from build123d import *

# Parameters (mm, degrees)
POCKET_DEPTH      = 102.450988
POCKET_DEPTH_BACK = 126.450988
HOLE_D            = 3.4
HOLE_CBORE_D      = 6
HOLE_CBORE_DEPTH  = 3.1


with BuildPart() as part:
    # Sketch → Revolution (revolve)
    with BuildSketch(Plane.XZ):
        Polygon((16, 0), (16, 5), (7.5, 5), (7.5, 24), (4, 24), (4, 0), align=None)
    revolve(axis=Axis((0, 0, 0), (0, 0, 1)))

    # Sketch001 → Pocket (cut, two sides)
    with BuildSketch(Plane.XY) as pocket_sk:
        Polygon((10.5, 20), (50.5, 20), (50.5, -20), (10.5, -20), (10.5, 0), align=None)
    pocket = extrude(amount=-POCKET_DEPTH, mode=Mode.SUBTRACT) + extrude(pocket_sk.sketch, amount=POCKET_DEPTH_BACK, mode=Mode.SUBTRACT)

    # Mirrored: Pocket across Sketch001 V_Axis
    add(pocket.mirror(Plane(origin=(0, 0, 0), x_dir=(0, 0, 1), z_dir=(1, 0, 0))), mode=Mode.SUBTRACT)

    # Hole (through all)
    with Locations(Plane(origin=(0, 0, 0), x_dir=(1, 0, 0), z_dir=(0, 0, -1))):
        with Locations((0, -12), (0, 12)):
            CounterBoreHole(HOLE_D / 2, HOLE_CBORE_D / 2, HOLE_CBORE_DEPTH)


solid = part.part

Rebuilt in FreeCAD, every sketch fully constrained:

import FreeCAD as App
import Part
import Sketcher

doc = App.newDocument("Part")
body = doc.addObject("PartDesign::Body", "Body")

# Sketch on XZ plane
sketch1 = body.newObject("Sketcher::SketchObject", "Sketch")
sketch1.AttachmentSupport = (doc.getObject("XZ_Plane"), [""])
sketch1.MapMode = "FlatFace"
sketch1.addGeometry(Part.LineSegment(App.Vector(16, 0, 0), App.Vector(16, 5, 0)), False)
sketch1.addGeometry(Part.LineSegment(App.Vector(16, 5, 0), App.Vector(7.5, 5, 0)), False)
sketch1.addGeometry(Part.LineSegment(App.Vector(7.5, 5, 0), App.Vector(7.5, 24, 0)), False)
sketch1.addGeometry(Part.LineSegment(App.Vector(7.5, 24, 0), App.Vector(4, 24, 0)), False)
sketch1.addGeometry(Part.LineSegment(App.Vector(4, 24, 0), App.Vector(4, 0, 0)), False)
sketch1.addGeometry(Part.LineSegment(App.Vector(4, 0, 0), App.Vector(16, 0, 0)), False)
sketch1.addConstraint(Sketcher.Constraint("Coincident", 0, 2, 1, 1))
sketch1.addConstraint(Sketcher.Constraint("Coincident", 1, 2, 2, 1))
sketch1.addConstraint(Sketcher.Constraint("Coincident", 2, 2, 3, 1))
sketch1.addConstraint(Sketcher.Constraint("Coincident", 3, 2, 4, 1))
sketch1.addConstraint(Sketcher.Constraint("Coincident", 4, 2, 5, 1))
sketch1.addConstraint(Sketcher.Constraint("Coincident", 5, 2, 0, 1))
sketch1.addConstraint(Sketcher.Constraint("Vertical", 0))
sketch1.addConstraint(Sketcher.Constraint("Horizontal", 1))
sketch1.addConstraint(Sketcher.Constraint("Vertical", 2))
sketch1.addConstraint(Sketcher.Constraint("Horizontal", 3))
sketch1.addConstraint(Sketcher.Constraint("Vertical", 4))
sketch1.addConstraint(Sketcher.Constraint("Horizontal", 5))
sketch1.addConstraint(Sketcher.Constraint("PointOnObject", 4, 2, -1))
sketch1.addConstraint(Sketcher.Constraint("DistanceX", 5, 1, 5, 2, 12.0))
sketch1.addConstraint(Sketcher.Constraint("DistanceY", 0, 1, 0, 2, 5.0))
sketch1.addConstraint(Sketcher.Constraint("DistanceY", 2, 1, 2, 2, 19.0))
sketch1.addConstraint(Sketcher.Constraint("DistanceX", 1, 2, 1, 1, 8.5))
sketch1.addConstraint(Sketcher.Constraint("DistanceX", -1, 1, 0, 2, 16.0))
revolution = body.newObject("PartDesign::Revolution", "Revolution")
revolution.Profile = sketch1
revolution.ReferenceAxis = (sketch1, ["V_Axis"])
revolution.Angle = 360

# Sketch on XY plane
sketch2 = body.newObject("Sketcher::SketchObject", "Sketch001")
sketch2.AttachmentSupport = (doc.getObject("XY_Plane"), [""])
sketch2.MapMode = "FlatFace"
sketch2.addGeometry(Part.LineSegment(App.Vector(50, 20, 0), App.Vector(10, 20, 0)), False)
sketch2.addGeometry(Part.LineSegment(App.Vector(10, 20, 0), App.Vector(10, -20, 0)), False)
sketch2.addGeometry(Part.LineSegment(App.Vector(10, -20, 0), App.Vector(50, -20, 0)), False)
sketch2.addGeometry(Part.LineSegment(App.Vector(50, -20, 0), App.Vector(50, 20, 0)), False)
sketch2.addConstraint(Sketcher.Constraint("Coincident", 0, 2, 1, 1))
sketch2.addConstraint(Sketcher.Constraint("Coincident", 1, 2, 2, 1))
sketch2.addConstraint(Sketcher.Constraint("Coincident", 2, 2, 3, 1))
sketch2.addConstraint(Sketcher.Constraint("Coincident", 3, 2, 0, 1))
sketch2.addConstraint(Sketcher.Constraint("Horizontal", 0))
sketch2.addConstraint(Sketcher.Constraint("Vertical", 1))
sketch2.addConstraint(Sketcher.Constraint("Horizontal", 2))
sketch2.addConstraint(Sketcher.Constraint("Vertical", 3))
sketch2.addConstraint(Sketcher.Constraint("Equal", 2, 1))
sketch2.addConstraint(Sketcher.Constraint("DistanceX", 0, 2, 0, 1, 40.0))
sketch2.addConstraint(Sketcher.Constraint("DistanceY", -1, 1, 0, 2, 20.0))
sketch2.addConstraint(Sketcher.Constraint("DistanceX", -1, 1, 0, 2, 10.5))
pocket1 = body.newObject("PartDesign::Pocket", "Pocket")
pocket1.Profile = sketch2
pocket1.Type = "ThroughAll"
pocket1.Midplane = True
doc.recompute()

mirrored = body.newObject("PartDesign::Mirrored", "Mirrored")
mirrored.Originals = [pocket1]
mirrored.MirrorPlane = (doc.getObject("YZ_Plane"), [""])
body.Tip = mirrored

# Sketch on XY plane
sketch3 = body.newObject("Sketcher::SketchObject", "Sketch002")
sketch3.AttachmentSupport = (doc.getObject("XY_Plane"), [""])
sketch3.MapMode = "FlatFace"
sketch3.addGeometry(Part.Circle(App.Vector(0, 12, 0), App.Vector(0, 0, 1), 1.7), False)
sketch3.addGeometry(Part.Circle(App.Vector(0, -12, 0), App.Vector(0, 0, 1), 1.7), False)
sketch3.addConstraint(Sketcher.Constraint("Equal", 0, 1))
sketch3.addConstraint(Sketcher.Constraint("Symmetric", 0, 3, 1, 3, -1, 1))
sketch3.addConstraint(Sketcher.Constraint("PointOnObject", 0, 3, -2))
sketch3.addConstraint(Sketcher.Constraint("Diameter", 0, 3.4))
sketch3.addConstraint(Sketcher.Constraint("DistanceY", -1, 1, 0, 3, 12.0))
doc.recompute()
hole = body.newObject("PartDesign::Hole", "Hole")
hole.Profile = sketch3
hole.ThreadType = "None"
hole.Diameter = 3.4
hole.DepthType = "ThroughAll"
hole.HoleCutType = "Counterbore"
hole.HoleCutDiameter = 6
hole.HoleCutDepth = 3.1
hole.Reversed = True

doc.recompute()
